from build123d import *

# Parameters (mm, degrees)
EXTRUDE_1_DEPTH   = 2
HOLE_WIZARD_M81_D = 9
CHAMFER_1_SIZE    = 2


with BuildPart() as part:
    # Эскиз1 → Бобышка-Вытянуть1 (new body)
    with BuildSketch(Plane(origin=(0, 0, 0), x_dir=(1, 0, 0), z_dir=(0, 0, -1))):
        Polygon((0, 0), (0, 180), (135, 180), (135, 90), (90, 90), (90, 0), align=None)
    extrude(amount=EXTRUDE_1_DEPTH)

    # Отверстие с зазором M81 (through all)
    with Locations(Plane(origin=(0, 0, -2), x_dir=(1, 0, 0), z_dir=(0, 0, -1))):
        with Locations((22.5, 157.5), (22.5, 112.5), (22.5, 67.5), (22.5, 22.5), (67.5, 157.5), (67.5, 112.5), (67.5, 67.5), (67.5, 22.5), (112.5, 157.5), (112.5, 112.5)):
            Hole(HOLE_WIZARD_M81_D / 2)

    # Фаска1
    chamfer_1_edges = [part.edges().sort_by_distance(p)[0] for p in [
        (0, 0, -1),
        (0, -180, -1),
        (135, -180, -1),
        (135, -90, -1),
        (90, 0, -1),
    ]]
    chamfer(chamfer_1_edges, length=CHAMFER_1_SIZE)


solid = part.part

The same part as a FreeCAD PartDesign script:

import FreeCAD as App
import Part
import Sketcher
from FreeCAD import Vector


def edges_at(feature, points):
    """Names of the edges that pass closest to the given points."""
    edges = feature.Shape.Edges
    near = lambda p: min(range(len(edges)), key=lambda i: edges[i].distToShape(Part.Vertex(*p))[0])
    return sorted({f"Edge{near(p) + 1}" for p in points})


def add_polygon(sketch, points):
    """Adds a closed chain of lines whose ends are joined by coincident constraints."""
    first, n = sketch.GeometryCount, len(points)
    for a, b in zip(points, points[1:] + points[:1]):
        sketch.addGeometry(Part.LineSegment(App.Vector(*a, 0), App.Vector(*b, 0)), False)
    for i in range(n):
        sketch.addConstraint(Sketcher.Constraint("Coincident", first + i, 2, first + (i + 1) % n, 1))

doc = App.newDocument("Part")
body = doc.addObject("PartDesign::Body", "Body")

sketch1 = body.newObject("Sketcher::SketchObject", "Sketch")
sketch1.AttachmentSupport = (doc.getObject("XY_Plane"), [""])
sketch1.MapMode = "FlatFace"
add_polygon(sketch1, [(0, -180), (0, 0), (90, 0), (90, -90), (135, -90), (135, -180)])
sketch1.addConstraint(Sketcher.Constraint("Vertical", 0))
sketch1.addConstraint(Sketcher.Constraint("Horizontal", 1))
sketch1.addConstraint(Sketcher.Constraint("Vertical", 2))
sketch1.addConstraint(Sketcher.Constraint("Horizontal", 3))
sketch1.addConstraint(Sketcher.Constraint("Vertical", 4))
sketch1.addConstraint(Sketcher.Constraint("Horizontal", 5))
sketch1.addConstraint(Sketcher.Constraint("Coincident", 0, 2, -1, 1))
sketch1.addConstraint(Sketcher.Constraint("Equal", 1, 2))
sketch1.addConstraint(Sketcher.Constraint("Equal", 2, 4))
sketch1.addConstraint(Sketcher.Constraint("DistanceX", 1, 1, 1, 2, 90.0))
sketch1.addConstraint(Sketcher.Constraint("DistanceX", 3, 1, 3, 2, 45.0))
pad1 = body.newObject("PartDesign::Pad", "Pad")
pad1.Profile = sketch1
pad1.Length = 2
pad1.Reversed = True

sketch2 = body.newObject("Sketcher::SketchObject", "Sketch001")
sketch2.AttachmentSupport = (doc.getObject("XY_Plane"), [""])
sketch2.MapMode = "FlatFace"
sketch2.AttachmentOffset = App.Placement(Vector(0, 0, -2), App.Rotation())
sketch2.addGeometry(Part.Circle(Vector(22.5, -157.5, 0), Vector(0, 0, 1), 4.5), False)
sketch2.addGeometry(Part.Circle(Vector(22.5, -112.5, 0), Vector(0, 0, 1), 4.5), False)
sketch2.addGeometry(Part.Circle(Vector(22.5, -67.5, 0), Vector(0, 0, 1), 4.5), False)
sketch2.addGeometry(Part.Circle(Vector(22.5, -22.5, 0), Vector(0, 0, 1), 4.5), False)
sketch2.addGeometry(Part.Circle(Vector(67.5, -157.5, 0), Vector(0, 0, 1), 4.5), False)
sketch2.addGeometry(Part.Circle(Vector(67.5, -112.5, 0), Vector(0, 0, 1), 4.5), False)
sketch2.addGeometry(Part.Circle(Vector(67.5, -67.5, 0), Vector(0, 0, 1), 4.5), False)
sketch2.addGeometry(Part.Circle(Vector(67.5, -22.5, 0), Vector(0, 0, 1), 4.5), False)
sketch2.addGeometry(Part.Circle(Vector(112.5, -157.5, 0), Vector(0, 0, 1), 4.5), False)
sketch2.addGeometry(Part.Circle(Vector(112.5, -112.5, 0), Vector(0, 0, 1), 4.5), False)
sketch2.addConstraint(Sketcher.Constraint("Equal", 0, 1))
sketch2.addConstraint(Sketcher.Constraint("Equal", 1, 2))
sketch2.addConstraint(Sketcher.Constraint("Equal", 2, 3))
sketch2.addConstraint(Sketcher.Constraint("Equal", 3, 4))
sketch2.addConstraint(Sketcher.Constraint("Equal", 4, 5))
sketch2.addConstraint(Sketcher.Constraint("Equal", 5, 6))
sketch2.addConstraint(Sketcher.Constraint("Equal", 6, 7))
sketch2.addConstraint(Sketcher.Constraint("Equal", 7, 8))
sketch2.addConstraint(Sketcher.Constraint("Equal", 8, 9))
sketch2.addConstraint(Sketcher.Constraint("Horizontal", 0, 3, 4, 3))
sketch2.addConstraint(Sketcher.Constraint("Horizontal", 1, 3, 5, 3))
sketch2.addConstraint(Sketcher.Constraint("Horizontal", 2, 3, 6, 3))
sketch2.addConstraint(Sketcher.Constraint("Horizontal", 3, 3, 7, 3))
sketch2.addConstraint(Sketcher.Constraint("Horizontal", 4, 3, 8, 3))
sketch2.addConstraint(Sketcher.Constraint("Horizontal", 5, 3, 9, 3))
sketch2.addConstraint(Sketcher.Constraint("Vertical", 0, 3, 1, 3))
sketch2.addConstraint(Sketcher.Constraint("Vertical", 1, 3, 2, 3))
sketch2.addConstraint(Sketcher.Constraint("Vertical", 2, 3, 3, 3))
sketch2.addConstraint(Sketcher.Constraint("Vertical", 4, 3, 5, 3))
sketch2.addConstraint(Sketcher.Constraint("Vertical", 5, 3, 6, 3))
sketch2.addConstraint(Sketcher.Constraint("Vertical", 6, 3, 7, 3))
sketch2.addConstraint(Sketcher.Constraint("Vertical", 8, 3, 9, 3))
sketch2.addConstraint(Sketcher.Constraint("Diameter", 0, 9.0))
sketch2.addConstraint(Sketcher.Constraint("DistanceY", 0, 3, 1, 3, 45.0))
sketch2.addConstraint(Sketcher.Constraint("DistanceY", 1, 3, 2, 3, 45.0))
sketch2.addConstraint(Sketcher.Constraint("DistanceY", 2, 3, 3, 3, 45.0))
sketch2.addConstraint(Sketcher.Constraint("DistanceX", 0, 3, 4, 3, 45.0))
sketch2.addConstraint(Sketcher.Constraint("DistanceX", 4, 3, 8, 3, 45.0))
sketch2.addConstraint(Sketcher.Constraint("DistanceX", -1, 1, 0, 3, 22.5))
sketch2.addConstraint(Sketcher.Constraint("DistanceY", 0, 3, -1, 1, 157.5))
doc.recompute()
hole = body.newObject("PartDesign::Hole", "Hole")
hole.Profile = sketch2
hole.ThreadType = "None"
hole.Diameter = 9
hole.DepthType = "ThroughAll"
hole.Reversed = True
doc.recompute()

chamfer = body.newObject("PartDesign::Chamfer", "Chamfer")
chamfer.Base = (hole, edges_at(hole, [
    (0, 0, -1),
    (0, -180, -1),
    (135, -180, -1),
    (135, -90, -1),
    (90, 0, -1),
]))
chamfer.Size = 2

doc.recompute()
